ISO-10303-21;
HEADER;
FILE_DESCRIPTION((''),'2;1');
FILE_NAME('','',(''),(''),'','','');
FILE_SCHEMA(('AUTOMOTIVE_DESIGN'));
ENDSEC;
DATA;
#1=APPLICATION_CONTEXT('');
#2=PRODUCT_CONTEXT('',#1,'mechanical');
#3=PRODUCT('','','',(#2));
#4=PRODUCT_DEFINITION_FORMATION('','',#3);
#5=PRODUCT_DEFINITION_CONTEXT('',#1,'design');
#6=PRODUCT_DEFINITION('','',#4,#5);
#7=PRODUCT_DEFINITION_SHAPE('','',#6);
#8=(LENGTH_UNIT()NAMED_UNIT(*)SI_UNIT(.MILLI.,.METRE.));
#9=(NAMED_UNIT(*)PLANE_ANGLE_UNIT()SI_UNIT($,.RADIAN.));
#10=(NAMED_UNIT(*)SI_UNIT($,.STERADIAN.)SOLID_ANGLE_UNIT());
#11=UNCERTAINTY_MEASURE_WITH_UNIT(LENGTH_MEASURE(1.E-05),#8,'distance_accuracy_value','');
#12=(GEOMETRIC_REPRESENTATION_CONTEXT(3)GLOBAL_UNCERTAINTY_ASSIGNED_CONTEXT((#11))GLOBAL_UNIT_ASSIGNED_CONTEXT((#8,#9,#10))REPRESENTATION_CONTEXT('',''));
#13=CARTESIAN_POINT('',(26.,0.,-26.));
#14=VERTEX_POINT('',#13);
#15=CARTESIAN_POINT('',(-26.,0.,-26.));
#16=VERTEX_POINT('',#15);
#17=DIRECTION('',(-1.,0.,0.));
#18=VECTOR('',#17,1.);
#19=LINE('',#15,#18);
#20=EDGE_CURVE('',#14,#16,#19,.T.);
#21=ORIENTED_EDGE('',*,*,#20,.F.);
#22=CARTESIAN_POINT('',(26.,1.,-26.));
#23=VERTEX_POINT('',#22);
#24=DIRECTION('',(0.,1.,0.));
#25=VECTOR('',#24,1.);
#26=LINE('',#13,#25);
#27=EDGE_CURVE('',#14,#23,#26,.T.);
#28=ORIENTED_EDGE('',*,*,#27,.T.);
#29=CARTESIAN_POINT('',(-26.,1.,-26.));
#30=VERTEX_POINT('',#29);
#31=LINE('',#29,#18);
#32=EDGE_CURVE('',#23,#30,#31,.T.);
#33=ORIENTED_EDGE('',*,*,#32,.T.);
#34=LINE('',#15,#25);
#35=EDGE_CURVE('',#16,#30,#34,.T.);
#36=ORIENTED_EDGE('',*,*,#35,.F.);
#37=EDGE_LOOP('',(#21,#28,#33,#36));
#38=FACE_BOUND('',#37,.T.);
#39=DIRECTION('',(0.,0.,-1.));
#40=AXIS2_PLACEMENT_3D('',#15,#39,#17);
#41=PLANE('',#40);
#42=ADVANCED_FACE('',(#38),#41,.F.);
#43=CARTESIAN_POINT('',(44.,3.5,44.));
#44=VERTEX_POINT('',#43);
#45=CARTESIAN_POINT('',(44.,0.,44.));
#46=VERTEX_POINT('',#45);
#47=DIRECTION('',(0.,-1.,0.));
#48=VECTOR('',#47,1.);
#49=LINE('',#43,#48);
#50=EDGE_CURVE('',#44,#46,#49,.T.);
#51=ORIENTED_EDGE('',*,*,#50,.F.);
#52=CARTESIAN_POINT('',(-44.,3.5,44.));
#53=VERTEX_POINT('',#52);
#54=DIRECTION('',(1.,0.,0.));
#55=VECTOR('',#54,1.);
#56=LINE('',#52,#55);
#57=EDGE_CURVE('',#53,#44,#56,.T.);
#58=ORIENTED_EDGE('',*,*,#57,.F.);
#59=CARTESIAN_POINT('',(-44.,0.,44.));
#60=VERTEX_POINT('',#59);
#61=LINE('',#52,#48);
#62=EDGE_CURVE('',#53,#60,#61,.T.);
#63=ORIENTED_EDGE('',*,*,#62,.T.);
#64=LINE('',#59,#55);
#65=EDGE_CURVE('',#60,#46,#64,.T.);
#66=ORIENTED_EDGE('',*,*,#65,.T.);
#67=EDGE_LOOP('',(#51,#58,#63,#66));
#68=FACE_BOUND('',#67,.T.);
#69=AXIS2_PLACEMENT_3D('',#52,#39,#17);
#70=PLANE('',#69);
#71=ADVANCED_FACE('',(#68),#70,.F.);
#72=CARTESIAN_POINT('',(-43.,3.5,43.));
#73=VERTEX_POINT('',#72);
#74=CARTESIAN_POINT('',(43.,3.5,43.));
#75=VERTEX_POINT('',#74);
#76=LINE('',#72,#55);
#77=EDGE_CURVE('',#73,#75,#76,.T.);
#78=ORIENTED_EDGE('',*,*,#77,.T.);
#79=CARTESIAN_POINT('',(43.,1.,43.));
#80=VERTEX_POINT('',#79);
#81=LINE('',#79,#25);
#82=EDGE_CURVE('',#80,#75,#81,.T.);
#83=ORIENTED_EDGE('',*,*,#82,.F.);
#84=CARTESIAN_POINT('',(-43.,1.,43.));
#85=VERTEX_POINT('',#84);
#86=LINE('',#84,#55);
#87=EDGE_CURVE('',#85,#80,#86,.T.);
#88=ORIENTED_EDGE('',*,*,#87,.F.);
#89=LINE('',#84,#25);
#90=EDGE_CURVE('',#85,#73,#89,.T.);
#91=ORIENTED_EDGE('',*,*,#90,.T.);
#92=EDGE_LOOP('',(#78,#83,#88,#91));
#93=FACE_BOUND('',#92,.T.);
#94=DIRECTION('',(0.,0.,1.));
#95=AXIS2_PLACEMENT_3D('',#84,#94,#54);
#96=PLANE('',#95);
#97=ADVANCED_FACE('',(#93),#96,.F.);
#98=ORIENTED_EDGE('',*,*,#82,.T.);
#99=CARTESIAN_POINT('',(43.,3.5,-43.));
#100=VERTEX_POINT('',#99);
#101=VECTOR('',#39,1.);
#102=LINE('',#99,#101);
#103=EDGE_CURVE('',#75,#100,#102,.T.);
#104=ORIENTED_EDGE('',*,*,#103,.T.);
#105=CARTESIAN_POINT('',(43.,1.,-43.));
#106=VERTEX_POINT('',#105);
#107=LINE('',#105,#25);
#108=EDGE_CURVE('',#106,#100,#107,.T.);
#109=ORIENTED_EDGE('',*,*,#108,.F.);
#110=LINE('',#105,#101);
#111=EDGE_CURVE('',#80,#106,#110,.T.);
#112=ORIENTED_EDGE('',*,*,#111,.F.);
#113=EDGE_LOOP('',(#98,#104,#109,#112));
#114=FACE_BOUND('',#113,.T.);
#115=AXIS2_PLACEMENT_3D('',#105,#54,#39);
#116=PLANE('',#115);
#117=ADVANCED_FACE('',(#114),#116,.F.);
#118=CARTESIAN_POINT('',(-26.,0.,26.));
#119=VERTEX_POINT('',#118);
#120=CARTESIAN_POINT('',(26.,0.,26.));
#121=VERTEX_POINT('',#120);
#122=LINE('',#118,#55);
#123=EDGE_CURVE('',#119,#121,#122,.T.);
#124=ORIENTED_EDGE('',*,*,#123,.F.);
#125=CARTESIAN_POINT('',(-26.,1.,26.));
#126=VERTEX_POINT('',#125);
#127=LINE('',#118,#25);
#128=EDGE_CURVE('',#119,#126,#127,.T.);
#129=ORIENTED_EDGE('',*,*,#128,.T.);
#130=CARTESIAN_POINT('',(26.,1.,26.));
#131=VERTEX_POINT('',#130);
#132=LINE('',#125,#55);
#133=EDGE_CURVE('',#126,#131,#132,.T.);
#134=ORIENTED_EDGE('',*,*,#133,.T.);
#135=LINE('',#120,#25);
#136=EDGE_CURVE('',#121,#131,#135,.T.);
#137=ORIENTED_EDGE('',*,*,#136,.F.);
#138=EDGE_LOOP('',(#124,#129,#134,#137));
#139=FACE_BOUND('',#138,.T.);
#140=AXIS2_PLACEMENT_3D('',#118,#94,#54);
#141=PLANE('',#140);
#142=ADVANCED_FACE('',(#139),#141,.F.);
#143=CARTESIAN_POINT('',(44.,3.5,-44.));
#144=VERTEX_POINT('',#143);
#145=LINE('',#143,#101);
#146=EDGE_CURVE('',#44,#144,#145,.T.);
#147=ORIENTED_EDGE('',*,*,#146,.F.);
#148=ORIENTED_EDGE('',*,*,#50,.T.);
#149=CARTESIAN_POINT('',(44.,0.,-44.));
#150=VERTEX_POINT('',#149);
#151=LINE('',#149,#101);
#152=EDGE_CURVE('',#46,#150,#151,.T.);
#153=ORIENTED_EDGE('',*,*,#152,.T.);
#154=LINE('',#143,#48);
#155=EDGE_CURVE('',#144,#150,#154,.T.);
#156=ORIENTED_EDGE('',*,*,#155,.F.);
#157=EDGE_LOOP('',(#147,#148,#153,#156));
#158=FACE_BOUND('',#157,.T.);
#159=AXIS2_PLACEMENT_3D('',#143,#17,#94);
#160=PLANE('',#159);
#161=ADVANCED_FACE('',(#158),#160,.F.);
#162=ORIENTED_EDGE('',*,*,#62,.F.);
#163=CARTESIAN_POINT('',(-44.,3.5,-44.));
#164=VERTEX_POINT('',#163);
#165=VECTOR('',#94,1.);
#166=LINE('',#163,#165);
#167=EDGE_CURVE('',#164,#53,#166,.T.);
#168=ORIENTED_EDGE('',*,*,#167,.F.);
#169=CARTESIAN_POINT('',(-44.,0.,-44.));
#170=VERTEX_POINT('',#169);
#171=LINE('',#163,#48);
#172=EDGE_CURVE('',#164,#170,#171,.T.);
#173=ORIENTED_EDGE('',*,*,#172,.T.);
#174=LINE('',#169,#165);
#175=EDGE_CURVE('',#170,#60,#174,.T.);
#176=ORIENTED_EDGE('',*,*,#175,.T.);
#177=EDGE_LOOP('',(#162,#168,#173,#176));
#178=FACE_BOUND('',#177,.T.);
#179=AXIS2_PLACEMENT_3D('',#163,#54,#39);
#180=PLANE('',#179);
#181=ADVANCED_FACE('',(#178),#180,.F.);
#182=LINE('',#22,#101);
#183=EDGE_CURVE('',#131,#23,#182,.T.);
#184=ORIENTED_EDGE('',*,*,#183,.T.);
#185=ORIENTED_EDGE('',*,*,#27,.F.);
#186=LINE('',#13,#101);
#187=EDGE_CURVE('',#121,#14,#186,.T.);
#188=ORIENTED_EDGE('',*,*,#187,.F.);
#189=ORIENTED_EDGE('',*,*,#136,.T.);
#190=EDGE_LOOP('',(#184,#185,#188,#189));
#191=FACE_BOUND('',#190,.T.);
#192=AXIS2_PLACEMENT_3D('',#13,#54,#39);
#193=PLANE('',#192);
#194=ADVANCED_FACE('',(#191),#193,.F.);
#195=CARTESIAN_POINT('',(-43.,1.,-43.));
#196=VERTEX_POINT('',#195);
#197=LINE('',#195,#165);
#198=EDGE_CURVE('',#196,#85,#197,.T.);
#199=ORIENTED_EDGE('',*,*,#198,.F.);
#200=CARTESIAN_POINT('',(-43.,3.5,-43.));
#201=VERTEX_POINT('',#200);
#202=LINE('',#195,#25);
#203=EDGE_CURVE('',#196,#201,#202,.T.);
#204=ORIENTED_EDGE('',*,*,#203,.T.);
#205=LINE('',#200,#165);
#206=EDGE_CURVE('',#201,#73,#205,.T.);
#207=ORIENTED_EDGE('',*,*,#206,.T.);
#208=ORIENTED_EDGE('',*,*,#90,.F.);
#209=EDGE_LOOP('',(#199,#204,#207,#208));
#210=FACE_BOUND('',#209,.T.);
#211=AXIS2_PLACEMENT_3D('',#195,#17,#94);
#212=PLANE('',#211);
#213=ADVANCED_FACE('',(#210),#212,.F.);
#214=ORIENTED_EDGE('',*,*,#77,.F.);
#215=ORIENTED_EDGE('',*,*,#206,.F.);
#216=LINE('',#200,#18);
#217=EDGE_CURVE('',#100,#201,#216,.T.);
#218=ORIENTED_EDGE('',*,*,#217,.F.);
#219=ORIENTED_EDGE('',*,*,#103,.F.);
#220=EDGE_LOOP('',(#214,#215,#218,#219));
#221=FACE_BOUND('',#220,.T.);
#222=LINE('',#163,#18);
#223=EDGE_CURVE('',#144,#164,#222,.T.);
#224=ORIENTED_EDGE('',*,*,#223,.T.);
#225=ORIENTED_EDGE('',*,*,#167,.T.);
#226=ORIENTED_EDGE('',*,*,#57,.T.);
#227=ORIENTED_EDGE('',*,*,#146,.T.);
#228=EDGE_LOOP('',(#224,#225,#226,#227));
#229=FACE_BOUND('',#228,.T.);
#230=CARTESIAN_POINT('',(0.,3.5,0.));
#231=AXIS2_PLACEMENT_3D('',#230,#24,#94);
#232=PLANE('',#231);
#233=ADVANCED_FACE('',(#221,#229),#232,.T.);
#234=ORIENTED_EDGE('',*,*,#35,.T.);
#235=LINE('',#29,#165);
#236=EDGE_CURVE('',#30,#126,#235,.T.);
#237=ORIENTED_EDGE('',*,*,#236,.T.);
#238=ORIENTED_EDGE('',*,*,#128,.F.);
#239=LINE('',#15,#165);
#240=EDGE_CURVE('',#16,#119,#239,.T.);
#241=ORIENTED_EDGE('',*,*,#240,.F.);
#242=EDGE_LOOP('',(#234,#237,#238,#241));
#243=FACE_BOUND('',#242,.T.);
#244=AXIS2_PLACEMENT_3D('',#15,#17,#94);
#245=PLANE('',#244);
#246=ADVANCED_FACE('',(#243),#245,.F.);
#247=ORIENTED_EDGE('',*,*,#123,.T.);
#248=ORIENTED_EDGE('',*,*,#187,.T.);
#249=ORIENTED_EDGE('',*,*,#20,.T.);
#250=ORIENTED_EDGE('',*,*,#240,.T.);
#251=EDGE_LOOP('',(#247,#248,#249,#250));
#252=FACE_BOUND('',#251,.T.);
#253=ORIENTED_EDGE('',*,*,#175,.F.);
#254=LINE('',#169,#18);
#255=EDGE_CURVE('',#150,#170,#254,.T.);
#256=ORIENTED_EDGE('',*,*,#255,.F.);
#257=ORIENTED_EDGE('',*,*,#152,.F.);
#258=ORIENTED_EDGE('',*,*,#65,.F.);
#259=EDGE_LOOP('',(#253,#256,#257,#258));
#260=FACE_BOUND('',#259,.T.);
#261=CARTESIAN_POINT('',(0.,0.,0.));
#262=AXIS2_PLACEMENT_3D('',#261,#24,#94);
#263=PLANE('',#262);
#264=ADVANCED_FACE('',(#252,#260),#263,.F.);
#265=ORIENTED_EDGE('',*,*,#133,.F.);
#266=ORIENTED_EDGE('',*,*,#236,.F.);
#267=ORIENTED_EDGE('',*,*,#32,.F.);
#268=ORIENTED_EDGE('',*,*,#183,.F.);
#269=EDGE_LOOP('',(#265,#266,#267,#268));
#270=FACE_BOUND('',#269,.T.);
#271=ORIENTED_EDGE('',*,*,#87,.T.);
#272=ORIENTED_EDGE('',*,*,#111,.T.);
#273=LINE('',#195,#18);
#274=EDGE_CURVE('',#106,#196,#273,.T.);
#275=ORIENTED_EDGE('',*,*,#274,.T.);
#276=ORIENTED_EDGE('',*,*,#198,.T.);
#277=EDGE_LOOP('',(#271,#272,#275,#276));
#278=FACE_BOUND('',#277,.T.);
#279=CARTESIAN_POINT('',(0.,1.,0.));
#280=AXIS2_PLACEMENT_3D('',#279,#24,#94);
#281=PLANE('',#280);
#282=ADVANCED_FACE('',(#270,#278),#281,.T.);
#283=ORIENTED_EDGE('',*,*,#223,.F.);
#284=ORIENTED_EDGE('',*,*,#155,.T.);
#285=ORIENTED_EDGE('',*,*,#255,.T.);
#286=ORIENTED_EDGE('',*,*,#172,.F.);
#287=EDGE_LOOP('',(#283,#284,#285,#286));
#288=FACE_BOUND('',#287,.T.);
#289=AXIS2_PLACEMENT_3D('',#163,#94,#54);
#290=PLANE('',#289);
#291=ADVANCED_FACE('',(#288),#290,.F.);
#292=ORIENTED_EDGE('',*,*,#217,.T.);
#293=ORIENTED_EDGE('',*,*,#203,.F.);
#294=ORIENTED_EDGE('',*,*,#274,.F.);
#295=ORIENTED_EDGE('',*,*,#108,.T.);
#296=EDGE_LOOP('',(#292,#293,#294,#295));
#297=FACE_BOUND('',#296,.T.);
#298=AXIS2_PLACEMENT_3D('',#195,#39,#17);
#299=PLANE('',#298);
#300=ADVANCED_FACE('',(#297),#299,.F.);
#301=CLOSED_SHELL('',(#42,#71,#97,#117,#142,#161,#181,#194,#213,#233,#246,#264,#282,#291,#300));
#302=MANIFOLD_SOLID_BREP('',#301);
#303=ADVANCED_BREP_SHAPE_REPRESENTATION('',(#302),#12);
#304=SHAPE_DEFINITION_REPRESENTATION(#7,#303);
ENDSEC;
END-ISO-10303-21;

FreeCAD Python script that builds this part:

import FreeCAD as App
import Part
import Sketcher
from FreeCAD import Vector


def add_polygon(sketch, points):
    """Adds a closed chain of lines whose ends are joined by coincident constraints."""
    first, n = sketch.GeometryCount, len(points)
    for a, b in zip(points, points[1:] + points[:1]):
        sketch.addGeometry(Part.LineSegment(App.Vector(*a, 0), App.Vector(*b, 0)), False)
    for i in range(n):
        sketch.addConstraint(Sketcher.Constraint("Coincident", first + i, 2, first + (i + 1) % n, 1))

doc = App.newDocument("Part")
body = doc.addObject("PartDesign::Body", "Body")

sketch1 = body.newObject("Sketcher::SketchObject", "Sketch")
sketch1.AttachmentSupport = (doc.getObject("XZ_Plane"), [""])
sketch1.MapMode = "FlatFace"
add_polygon(sketch1, [(-44, -44), (-44, 44), (44, 44), (44, -44)])
sketch1.addConstraint(Sketcher.Constraint("Vertical", 0))
sketch1.addConstraint(Sketcher.Constraint("Horizontal", 1))
sketch1.addConstraint(Sketcher.Constraint("Vertical", 2))
sketch1.addConstraint(Sketcher.Constraint("Horizontal", 3))
sketch1.addConstraint(Sketcher.Constraint("Symmetric", 0, 2, 2, 2, -1, 1))
sketch1.addConstraint(Sketcher.Constraint("Equal", 3, 0))
sketch1.addConstraint(Sketcher.Constraint("DistanceX", 1, 1, 1, 2, 88.0))
pad1 = body.newObject("PartDesign::Pad", "Pad")
pad1.Profile = sketch1
pad1.Length = 3.5
pad1.Reversed = True

sketch2 = body.newObject("Sketcher::SketchObject", "Sketch001")
sketch2.AttachmentSupport = (doc.getObject("XZ_Plane"), [""])
sketch2.MapMode = "FlatFace"
sketch2.AttachmentOffset = App.Placement(Vector(0, 0, -3.5), App.Rotation())
add_polygon(sketch2, [(-43, -43), (-43, 43), (43, 43), (43, -43)])
sketch2.addConstraint(Sketcher.Constraint("Vertical", 0))
sketch2.addConstraint(Sketcher.Constraint("Horizontal", 1))
sketch2.addConstraint(Sketcher.Constraint("Vertical", 2))
sketch2.addConstraint(Sketcher.Constraint("Horizontal", 3))
sketch2.addConstraint(Sketcher.Constraint("Symmetric", 0, 2, 2, 2, -1, 1))
sketch2.addConstraint(Sketcher.Constraint("Equal", 3, 0))
sketch2.addConstraint(Sketcher.Constraint("DistanceX", 1, 1, 1, 2, 86.0))
pocket1 = body.newObject("PartDesign::Pocket", "Pocket")
pocket1.Profile = sketch2
pocket1.Length = 2.5
pocket1.Reversed = True

sketch3 = body.newObject("Sketcher::SketchObject", "Sketch002")
sketch3.AttachmentSupport = (doc.getObject("XZ_Plane"), [""])
sketch3.MapMode = "FlatFace"
sketch3.AttachmentOffset = App.Placement(Vector(0, 0, -1), App.Rotation())
add_polygon(sketch3, [(-26, -26), (-26, 26), (26, 26), (26, -26)])
sketch3.addConstraint(Sketcher.Constraint("Vertical", 0))
sketch3.addConstraint(Sketcher.Constraint("Horizontal", 1))
sketch3.addConstraint(Sketcher.Constraint("Vertical", 2))
sketch3.addConstraint(Sketcher.Constraint("Horizontal", 3))
sketch3.addConstraint(Sketcher.Constraint("Symmetric", 0, 2, 2, 2, -1, 1))
sketch3.addConstraint(Sketcher.Constraint("Equal", 3, 0))
sketch3.addConstraint(Sketcher.Constraint("DistanceX", 1, 1, 1, 2, 52.0))
pocket2 = body.newObject("PartDesign::Pocket", "Pocket001")
pocket2.Profile = sketch3
pocket2.Type = "ThroughAll"
pocket2.Reversed = True

doc.recompute()
